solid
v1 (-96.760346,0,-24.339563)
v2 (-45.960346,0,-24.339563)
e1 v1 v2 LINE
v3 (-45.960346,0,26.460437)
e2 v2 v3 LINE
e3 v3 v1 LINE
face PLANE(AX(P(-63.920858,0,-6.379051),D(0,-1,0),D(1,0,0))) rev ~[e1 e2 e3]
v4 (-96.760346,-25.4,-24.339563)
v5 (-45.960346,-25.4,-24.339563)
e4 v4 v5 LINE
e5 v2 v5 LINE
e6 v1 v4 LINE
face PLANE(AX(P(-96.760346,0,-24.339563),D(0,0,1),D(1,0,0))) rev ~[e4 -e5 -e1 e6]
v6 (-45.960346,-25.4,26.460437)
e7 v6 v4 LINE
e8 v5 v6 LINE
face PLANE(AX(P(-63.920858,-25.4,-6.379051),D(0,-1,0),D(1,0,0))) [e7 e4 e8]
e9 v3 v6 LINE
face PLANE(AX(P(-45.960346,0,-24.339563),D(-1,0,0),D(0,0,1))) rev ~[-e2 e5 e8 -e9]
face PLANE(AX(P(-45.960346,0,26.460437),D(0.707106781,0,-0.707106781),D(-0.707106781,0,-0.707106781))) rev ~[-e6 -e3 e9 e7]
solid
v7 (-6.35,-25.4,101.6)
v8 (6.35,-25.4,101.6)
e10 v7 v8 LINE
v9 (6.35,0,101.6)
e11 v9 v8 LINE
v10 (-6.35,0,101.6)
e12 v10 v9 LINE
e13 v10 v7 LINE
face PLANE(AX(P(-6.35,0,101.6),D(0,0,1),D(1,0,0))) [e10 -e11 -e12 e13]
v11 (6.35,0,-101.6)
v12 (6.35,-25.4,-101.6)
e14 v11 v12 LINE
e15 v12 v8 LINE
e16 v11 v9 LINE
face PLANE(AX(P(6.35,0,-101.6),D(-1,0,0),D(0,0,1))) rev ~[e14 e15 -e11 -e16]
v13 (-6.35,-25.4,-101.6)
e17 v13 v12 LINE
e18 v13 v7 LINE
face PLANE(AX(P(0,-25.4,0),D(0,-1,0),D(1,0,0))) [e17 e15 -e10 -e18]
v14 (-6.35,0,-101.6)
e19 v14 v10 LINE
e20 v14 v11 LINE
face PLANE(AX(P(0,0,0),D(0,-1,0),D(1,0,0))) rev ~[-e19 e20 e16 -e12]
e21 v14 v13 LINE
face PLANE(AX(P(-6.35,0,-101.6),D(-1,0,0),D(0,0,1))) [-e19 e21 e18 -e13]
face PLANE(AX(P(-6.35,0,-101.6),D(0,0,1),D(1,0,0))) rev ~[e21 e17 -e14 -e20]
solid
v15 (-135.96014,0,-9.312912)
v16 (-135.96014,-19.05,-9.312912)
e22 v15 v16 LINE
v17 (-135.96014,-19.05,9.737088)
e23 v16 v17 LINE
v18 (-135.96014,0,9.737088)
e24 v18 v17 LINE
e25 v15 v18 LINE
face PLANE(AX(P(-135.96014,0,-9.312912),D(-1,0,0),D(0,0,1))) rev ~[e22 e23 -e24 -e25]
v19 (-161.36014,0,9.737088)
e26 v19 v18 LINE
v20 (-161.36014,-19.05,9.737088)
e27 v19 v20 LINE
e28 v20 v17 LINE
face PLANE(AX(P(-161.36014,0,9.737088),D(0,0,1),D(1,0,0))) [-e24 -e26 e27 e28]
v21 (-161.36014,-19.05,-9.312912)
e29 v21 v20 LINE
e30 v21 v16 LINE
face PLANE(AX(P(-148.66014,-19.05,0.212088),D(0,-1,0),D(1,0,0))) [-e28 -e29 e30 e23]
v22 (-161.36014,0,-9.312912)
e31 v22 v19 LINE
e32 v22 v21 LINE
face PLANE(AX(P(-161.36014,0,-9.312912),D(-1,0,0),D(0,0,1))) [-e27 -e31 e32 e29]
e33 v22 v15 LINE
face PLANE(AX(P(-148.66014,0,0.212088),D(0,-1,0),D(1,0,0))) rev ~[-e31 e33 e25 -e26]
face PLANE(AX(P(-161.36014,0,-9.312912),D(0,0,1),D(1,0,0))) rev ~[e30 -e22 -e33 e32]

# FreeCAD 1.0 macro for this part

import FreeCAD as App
import Part
import Sketcher
from FreeCAD import Vector
Q = App.Units.Quantity

doc = App.newDocument("Part")
body = doc.addObject("PartDesign::Body", "Body")

# Sketch on XZ plane
sketch1 = body.newObject("Sketcher::SketchObject", "Sketch")
sketch1.AttachmentSupport = (doc.getObject("XZ_Plane"), [""])
sketch1.MapMode = "FlatFace"
sketch1.addGeometry(Part.LineSegment(Vector(-6.35, 101.6, 0), Vector(-6.35, -101.6, 0)), False)
sketch1.addGeometry(Part.LineSegment(Vector(-6.35, -101.6, 0), Vector(6.35, -101.6, 0)), False)
sketch1.addGeometry(Part.LineSegment(Vector(6.35, -101.6, 0), Vector(6.35, 101.6, 0)), False)
sketch1.addGeometry(Part.LineSegment(Vector(6.35, 101.6, 0), Vector(-6.35, 101.6, 0)), False)
sketch1.addConstraint(Sketcher.Constraint("Coincident", 0, 2, 1, 1))
sketch1.addConstraint(Sketcher.Constraint("Coincident", 1, 2, 2, 1))
sketch1.addConstraint(Sketcher.Constraint("Coincident", 2, 2, 3, 1))
sketch1.addConstraint(Sketcher.Constraint("Coincident", 3, 2, 0, 1))
sketch1.addConstraint(Sketcher.Constraint("Vertical", 0))
sketch1.addConstraint(Sketcher.Constraint("Horizontal", 1))
sketch1.addConstraint(Sketcher.Constraint("Vertical", 2))
sketch1.addConstraint(Sketcher.Constraint("Horizontal", 3))
sketch1.addConstraint(Sketcher.Constraint("Symmetric", 0, 2, 2, 2, -1, 1))
sketch1.addConstraint(Sketcher.Constraint("DistanceY", 0, 2, 0, 1, Q("8 in")))
sketch1.addConstraint(Sketcher.Constraint("DistanceX", 1, 1, 1, 2, Q("0.5 in")))
pad1 = body.newObject("PartDesign::Pad", "Pad")
pad1.Profile = sketch1
pad1.Length = Q("1 in")
body2 = doc.addObject("PartDesign::Body", "Body001")

# Sketch on XZ plane
sketch2 = body2.newObject("Sketcher::SketchObject", "Sketch001")
sketch2.AttachmentSupport = (doc.getObject("XZ_Plane001"), [""])
sketch2.MapMode = "FlatFace"
sketch2.addGeometry(Part.LineSegment(Vector(-45.960346, 26.460437, 0), Vector(-96.760346, -24.339563, 0)), False)
sketch2.addGeometry(Part.LineSegment(Vector(-96.760346, -24.339563, 0), Vector(-45.960346, -24.339563, 0)), False)
sketch2.addGeometry(Part.LineSegment(Vector(-45.960346, -24.339563, 0), Vector(-45.960346, 26.460437, 0)), False)
sketch2.addConstraint(Sketcher.Constraint("Coincident", 0, 2, 1, 1))
sketch2.addConstraint(Sketcher.Constraint("Coincident", 1, 2, 2, 1))
sketch2.addConstraint(Sketcher.Constraint("Coincident", 2, 2, 0, 1))
sketch2.addConstraint(Sketcher.Constraint("Horizontal", 1))
sketch2.addConstraint(Sketcher.Constraint("Vertical", 2))
sketch2.addConstraint(Sketcher.Constraint("Equal", 1, 2))
sketch2.addConstraint(Sketcher.Constraint("DistanceX", 1, 1, 1, 2, Q("2 in")))
sketch2.addConstraint(Sketcher.Constraint("DistanceX", 0, 2, -1, 1, Q("96.760346 mm")))
sketch2.addConstraint(Sketcher.Constraint("DistanceY", 0, 2, -1, 1, Q("24.339563 mm")))
pad2 = body2.newObject("PartDesign::Pad", "Pad001")
pad2.Profile = sketch2
pad2.Length = Q("1 in")
body3 = doc.addObject("PartDesign::Body", "Body002")

# Sketch on XZ plane
sketch3 = body3.newObject("Sketcher::SketchObject", "Sketch002")
sketch3.AttachmentSupport = (doc.getObject("XZ_Plane002"), [""])
sketch3.MapMode = "FlatFace"
sketch3.addGeometry(Part.LineSegment(Vector(-161.36014, 9.737088, 0), Vector(-161.36014, -9.312912, 0)), False)
sketch3.addGeometry(Part.LineSegment(Vector(-161.36014, -9.312912, 0), Vector(-135.96014, -9.312912, 0)), False)
sketch3.addGeometry(Part.LineSegment(Vector(-135.96014, -9.312912, 0), Vector(-135.96014, 9.737088, 0)), False)
sketch3.addGeometry(Part.LineSegment(Vector(-135.96014, 9.737088, 0), Vector(-161.36014, 9.737088, 0)), False)
sketch3.addConstraint(Sketcher.Constraint("Coincident", 0, 2, 1, 1))
sketch3.addConstraint(Sketcher.Constraint("Coincident", 1, 2, 2, 1))
sketch3.addConstraint(Sketcher.Constraint("Coincident", 2, 2, 3, 1))
sketch3.addConstraint(Sketcher.Constraint("Coincident", 3, 2, 0, 1))
sketch3.addConstraint(Sketcher.Constraint("Vertical", 0))
sketch3.addConstraint(Sketcher.Constraint("Horizontal", 1))
sketch3.addConstraint(Sketcher.Constraint("Vertical", 2))
sketch3.addConstraint(Sketcher.Constraint("Horizontal", 3))
sketch3.addConstraint(Sketcher.Constraint("DistanceX", 1, 1, 1, 2, Q("1 in")))
sketch3.addConstraint(Sketcher.Constraint("DistanceY", 0, 2, 0, 1, Q("0.75 in")))
sketch3.addConstraint(Sketcher.Constraint("DistanceX", 0, 2, -1, 1, Q("161.36014 mm")))
sketch3.addConstraint(Sketcher.Constraint("DistanceY", 0, 2, -1, 1, Q("9.312912 mm")))
pad3 = body3.newObject("PartDesign::Pad", "Pad002")
pad3.Profile = sketch3
pad3.Length = Q("0.75 in")

doc.recompute()
